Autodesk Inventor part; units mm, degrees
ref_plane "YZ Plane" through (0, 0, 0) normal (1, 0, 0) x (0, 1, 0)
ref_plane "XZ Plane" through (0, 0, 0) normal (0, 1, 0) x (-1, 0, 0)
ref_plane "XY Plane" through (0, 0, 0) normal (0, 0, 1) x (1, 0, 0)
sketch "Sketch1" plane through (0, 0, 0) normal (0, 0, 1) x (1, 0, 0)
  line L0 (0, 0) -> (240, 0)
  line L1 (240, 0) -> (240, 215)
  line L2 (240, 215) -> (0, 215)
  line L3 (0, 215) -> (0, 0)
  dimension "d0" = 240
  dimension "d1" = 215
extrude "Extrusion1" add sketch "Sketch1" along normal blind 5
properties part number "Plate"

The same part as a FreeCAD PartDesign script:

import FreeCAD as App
import Part
import Sketcher

V = App.Vector
Q = App.Units.Quantity


def add_polygon(sketch, points):
    """Adds a closed chain of lines whose ends are joined by coincident constraints."""
    first, n = sketch.GeometryCount, len(points)
    for a, b in zip(points, points[1:] + points[:1]):
        sketch.addGeometry(Part.LineSegment(App.Vector(*a, 0), App.Vector(*b, 0)), False)
    for i in range(n):
        sketch.addConstraint(Sketcher.Constraint("Coincident", first + i, 2, first + (i + 1) % n, 1))

doc = App.newDocument("Part")
body = doc.addObject("PartDesign::Body", "Body")

# Sketch on XY plane
sketch1 = body.newObject("Sketcher::SketchObject", "Sketch")
sketch1.AttachmentSupport = (doc.getObject("XY_Plane"), [""])
sketch1.MapMode = "FlatFace"
add_polygon(sketch1, [(0, 215), (0, 0), (240, 0), (240, 215)])  # lines 0-3
sketch1.addConstraint(Sketcher.Constraint("Vertical", 0))
sketch1.addConstraint(Sketcher.Constraint("Horizontal", 1))
sketch1.addConstraint(Sketcher.Constraint("Vertical", 2))
sketch1.addConstraint(Sketcher.Constraint("Horizontal", 3))
sketch1.addConstraint(Sketcher.Constraint("Coincident", 0, 2, -1, 1))
sketch1.addConstraint(Sketcher.Constraint("DistanceX", 1, 1, 1, 2, Q("240 mm")))
sketch1.addConstraint(Sketcher.Constraint("DistanceY", 0, 2, 0, 1, Q("215 mm")))
pad1 = body.newObject("PartDesign::Pad", "Pad")
pad1.Profile = sketch1
pad1.Length = 5

doc.recompute()
